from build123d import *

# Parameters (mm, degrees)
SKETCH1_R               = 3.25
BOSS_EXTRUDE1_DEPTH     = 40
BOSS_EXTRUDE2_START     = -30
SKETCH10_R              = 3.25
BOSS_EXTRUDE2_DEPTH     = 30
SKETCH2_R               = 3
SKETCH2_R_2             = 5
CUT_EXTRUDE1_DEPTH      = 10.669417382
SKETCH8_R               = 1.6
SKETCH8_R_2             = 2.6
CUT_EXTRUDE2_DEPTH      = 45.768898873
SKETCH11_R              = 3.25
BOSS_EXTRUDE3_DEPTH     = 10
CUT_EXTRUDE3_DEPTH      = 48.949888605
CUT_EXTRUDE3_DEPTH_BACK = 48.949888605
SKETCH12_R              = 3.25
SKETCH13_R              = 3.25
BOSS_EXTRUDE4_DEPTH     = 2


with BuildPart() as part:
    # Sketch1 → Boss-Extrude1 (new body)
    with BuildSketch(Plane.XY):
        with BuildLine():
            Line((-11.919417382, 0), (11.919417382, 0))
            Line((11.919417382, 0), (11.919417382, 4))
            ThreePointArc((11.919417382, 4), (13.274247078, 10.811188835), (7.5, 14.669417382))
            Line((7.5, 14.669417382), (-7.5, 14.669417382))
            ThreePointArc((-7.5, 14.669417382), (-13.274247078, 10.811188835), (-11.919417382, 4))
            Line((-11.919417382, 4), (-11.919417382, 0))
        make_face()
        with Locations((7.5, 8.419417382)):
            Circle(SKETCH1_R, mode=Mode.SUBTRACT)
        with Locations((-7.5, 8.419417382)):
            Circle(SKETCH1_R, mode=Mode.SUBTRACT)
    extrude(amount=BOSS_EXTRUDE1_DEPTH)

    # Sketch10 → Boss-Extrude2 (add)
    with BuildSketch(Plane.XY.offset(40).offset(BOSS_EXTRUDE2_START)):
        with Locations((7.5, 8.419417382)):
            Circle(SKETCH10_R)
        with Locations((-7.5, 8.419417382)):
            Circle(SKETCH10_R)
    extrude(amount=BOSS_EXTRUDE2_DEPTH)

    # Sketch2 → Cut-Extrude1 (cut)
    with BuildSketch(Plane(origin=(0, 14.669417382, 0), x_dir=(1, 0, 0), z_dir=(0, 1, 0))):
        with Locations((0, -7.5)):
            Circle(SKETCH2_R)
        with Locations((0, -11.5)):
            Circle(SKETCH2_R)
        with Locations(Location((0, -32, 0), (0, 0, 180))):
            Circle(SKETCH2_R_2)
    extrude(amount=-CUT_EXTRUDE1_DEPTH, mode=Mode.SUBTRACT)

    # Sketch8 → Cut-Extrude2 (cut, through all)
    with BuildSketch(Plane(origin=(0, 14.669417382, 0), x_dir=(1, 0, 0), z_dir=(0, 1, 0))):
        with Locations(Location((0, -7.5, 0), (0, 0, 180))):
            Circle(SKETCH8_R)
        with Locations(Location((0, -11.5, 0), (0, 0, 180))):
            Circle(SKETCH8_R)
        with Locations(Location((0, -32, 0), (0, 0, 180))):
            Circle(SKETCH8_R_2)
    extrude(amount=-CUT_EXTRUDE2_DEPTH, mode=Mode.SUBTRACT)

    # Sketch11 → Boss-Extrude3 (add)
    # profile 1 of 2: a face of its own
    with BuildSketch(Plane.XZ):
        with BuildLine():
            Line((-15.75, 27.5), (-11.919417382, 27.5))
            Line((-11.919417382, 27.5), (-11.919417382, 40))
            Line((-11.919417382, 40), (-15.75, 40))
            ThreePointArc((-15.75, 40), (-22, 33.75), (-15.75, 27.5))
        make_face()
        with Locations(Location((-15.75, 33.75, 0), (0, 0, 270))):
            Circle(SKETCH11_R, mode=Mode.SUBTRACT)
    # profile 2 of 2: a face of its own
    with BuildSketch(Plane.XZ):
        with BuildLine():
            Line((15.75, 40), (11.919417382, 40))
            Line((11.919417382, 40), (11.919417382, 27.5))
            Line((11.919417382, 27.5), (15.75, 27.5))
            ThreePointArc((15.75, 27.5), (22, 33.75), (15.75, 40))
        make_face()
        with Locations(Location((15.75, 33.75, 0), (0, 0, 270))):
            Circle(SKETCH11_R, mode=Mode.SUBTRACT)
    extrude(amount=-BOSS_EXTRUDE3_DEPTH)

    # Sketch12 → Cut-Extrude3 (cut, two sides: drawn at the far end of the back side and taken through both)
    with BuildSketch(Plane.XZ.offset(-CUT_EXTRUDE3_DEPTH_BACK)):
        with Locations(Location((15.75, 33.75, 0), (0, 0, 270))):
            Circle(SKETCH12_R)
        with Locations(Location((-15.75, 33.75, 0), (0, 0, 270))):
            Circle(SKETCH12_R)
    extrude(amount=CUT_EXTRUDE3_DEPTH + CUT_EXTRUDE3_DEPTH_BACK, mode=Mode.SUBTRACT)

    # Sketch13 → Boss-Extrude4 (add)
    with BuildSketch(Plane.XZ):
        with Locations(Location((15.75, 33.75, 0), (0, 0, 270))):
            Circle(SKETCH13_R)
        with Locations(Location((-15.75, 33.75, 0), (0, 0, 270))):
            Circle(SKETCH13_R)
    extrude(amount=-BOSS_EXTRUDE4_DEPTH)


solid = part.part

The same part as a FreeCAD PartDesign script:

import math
import FreeCAD as App
import Part
import Sketcher

doc = App.newDocument("Part")
params = doc.addObject("Spreadsheet::Sheet", "Params")
for row, (alias, value) in enumerate([
    ("sketch1_diameter", "6.5 mm"),
    ("sketch1_width", "15 mm"),
    ("sketch1_height", "4 mm"),
    ("sketch1_radius", "6.25 mm"),
    ("pad1_length", "40 mm"),
    ("sketch2_diameter", "6.5 mm"),
    ("pad2_length", "30 mm"),
    ("sketch3_diameter", "10 mm"),
    ("sketch3_radius", "3 mm"),
    ("pocket1_length", "10.669417 mm"),
    ("sketch4_diameter", "3.2 mm"),
    ("sketch4_diameter2", "5.2 mm"),
    ("sketch5_diameter", "6.5 mm"),
    ("sketch5_radius", "6.25 mm"),
    ("pad3_length", "10 mm"),
    ("sketch6_diameter", "6.5 mm"),
    ("sketch7_diameter", "6.5 mm"),
    ("pad4_length", "2 mm"),
], start=1):
    params.set(f"A{row}", alias)
    params.set(f"B{row}", "=" + value)
    params.setAlias(f"B{row}", alias)

body = doc.addObject("PartDesign::Body", "Body")

sketch1 = body.newObject("Sketcher::SketchObject", "Sketch")
sketch1.AttachmentSupport = (doc.getObject("XY_Plane"), [""])
sketch1.MapMode = "FlatFace"
sketch1.addGeometry([
    Part.LineSegment(App.Vector(-11.919417, 0, 0), App.Vector(11.919417, 0, 0)),
    Part.LineSegment(App.Vector(11.919417, 0, 0), App.Vector(11.919417, 4, 0)),
    Part.ArcOfCircle(Part.Circle(App.Vector(7.5, 8.419417, 0), App.Vector(0, 0, 1), 6.25), math.radians(-45), math.radians(90)),
    Part.LineSegment(App.Vector(7.5, 14.669417, 0), App.Vector(-7.5, 14.669417, 0)),
    Part.ArcOfCircle(Part.Circle(App.Vector(-7.5, 8.419417, 0), App.Vector(0, 0, 1), 6.25), math.radians(90), math.radians(225)),
    Part.LineSegment(App.Vector(-11.919417, 4, 0), App.Vector(-11.919417, 0, 0)),
    Part.Circle(App.Vector(-7.5, 8.419417, 0), App.Vector(0, 0, 1), 3.25),
    Part.Circle(App.Vector(7.5, 8.419417, 0), App.Vector(0, 0, 1), 3.25),
], False)
sketch1.addConstraint([
    Sketcher.Constraint("Coincident", 0, 2, 1, 1),
    Sketcher.Constraint("Coincident", 1, 2, 2, 1),
    Sketcher.Constraint("Tangent", 2, 2, 3, 1),
    Sketcher.Constraint("Tangent", 3, 2, 4, 1),
    Sketcher.Constraint("Coincident", 4, 2, 5, 1),
    Sketcher.Constraint("Coincident", 5, 2, 0, 1),
    Sketcher.Constraint("Horizontal", 0),
    Sketcher.Constraint("Vertical", 1),
    Sketcher.Constraint("Horizontal", 3),
    Sketcher.Constraint("Vertical", 5),
    Sketcher.Constraint("Coincident", 6, 3, 4, 3),
    Sketcher.Constraint("Coincident", 7, 3, 2, 3),
    Sketcher.Constraint("Equal", 2, 4),
    Sketcher.Constraint("Equal", 6, 7),
    Sketcher.Constraint("Symmetric", 0, 2, 5, 2, -1, 1),
    Sketcher.Constraint("Horizontal", 1, 2, 4, 2),
    Sketcher.Constraint("Diameter", 6, 6.5),
    Sketcher.Constraint("DistanceX", 3, 2, 3, 1, 15.0),
    Sketcher.Constraint("DistanceY", 1, 1, 1, 2, 4.0),
    Sketcher.Constraint("Radius", 2, 6.25),
    Sketcher.Constraint("DistanceX", 0, 1, 0, 2, 23.838835),
])
sketch1.setExpression("Constraints[16]", "Params.sketch1_diameter")
sketch1.setExpression("Constraints[17]", "Params.sketch1_width")
sketch1.setExpression("Constraints[18]", "Params.sketch1_height")
sketch1.setExpression("Constraints[19]", "Params.sketch1_radius")
pad1 = body.newObject("PartDesign::Pad", "Pad")
pad1.Profile = sketch1
pad1.setExpression("Length", "Params.pad1_length")

sketch2 = body.newObject("Sketcher::SketchObject", "Sketch001")
sketch2.AttachmentSupport = (doc.getObject("XY_Plane"), [""])
sketch2.MapMode = "FlatFace"
sketch2.AttachmentOffset = App.Placement(App.Vector(0, 0, 10), App.Rotation())
sketch2.addGeometry([
    Part.Circle(App.Vector(7.5, 8.419417, 0), App.Vector(0, 0, 1), 3.25),
    Part.Circle(App.Vector(-7.5, 8.419417, 0), App.Vector(0, 0, 1), 3.25),
], False)
sketch2.addConstraint([
    Sketcher.Constraint("Equal", 0, 1),
    Sketcher.Constraint("Symmetric", 0, 3, 1, 3, -2),
    Sketcher.Constraint("Diameter", 0, 6.5),
    Sketcher.Constraint("DistanceX", 1, 3, 0, 3, 15.0),
    Sketcher.Constraint("DistanceY", -1, 1, 0, 3, 8.419417),
])
sketch2.setExpression("Constraints[2]", "Params.sketch2_diameter")
pad2 = body.newObject("PartDesign::Pad", "Pad001")
pad2.Profile = sketch2
pad2.setExpression("Length", "Params.pad2_length")

sketch3 = body.newObject("Sketcher::SketchObject", "Sketch002")
sketch3.AttachmentSupport = (doc.getObject("XZ_Plane"), [""])
sketch3.MapMode = "FlatFace"
sketch3.AttachmentOffset = App.Placement(App.Vector(0, 0, -14.669417), App.Rotation())
sketch3.addGeometry([
    Part.ArcOfCircle(Part.Circle(App.Vector(0, 7.5, 0), App.Vector(0, 0, 1), 3), math.radians(138.189685), math.radians(401.810315)),
    Part.ArcOfCircle(Part.Circle(App.Vector(0, 11.5, 0), App.Vector(0, 0, 1), 3), math.radians(-41.810315), math.radians(221.810315)),
    Part.Circle(App.Vector(0, 32, 0), App.Vector(0, 0, 1), 5),
], False)
sketch3.addConstraint([
    Sketcher.Constraint("Coincident", 0, 1, 1, 2),
    Sketcher.Constraint("Coincident", 1, 1, 0, 2),
    Sketcher.Constraint("Equal", 0, 1),
    Sketcher.Constraint("Symmetric", 0, 1, 1, 1, -2),
    Sketcher.Constraint("PointOnObject", 2, 3, -2),
    Sketcher.Constraint("Diameter", 2, 10.0),
    Sketcher.Constraint("Radius", 0, 3.0),
    Sketcher.Constraint("DistanceY", -1, 1, 2, 3, 32.0),
    Sketcher.Constraint("DistanceY", 0, 3, 1, 3, 4.0),
    Sketcher.Constraint("DistanceY", -1, 1, 0, 3, 7.5),
])
sketch3.setExpression("Constraints[5]", "Params.sketch3_diameter")
sketch3.setExpression("Constraints[6]", "Params.sketch3_radius")
pocket1 = body.newObject("PartDesign::Pocket", "Pocket")
pocket1.Profile = sketch3
pocket1.setExpression("Length", "Params.pocket1_length")
pocket1.Reversed = True

sketch4 = body.newObject("Sketcher::SketchObject", "Sketch003")
sketch4.AttachmentSupport = (doc.getObject("XZ_Plane"), [""])
sketch4.MapMode = "FlatFace"
sketch4.AttachmentOffset = App.Placement(App.Vector(0, 0, -14.669417), App.Rotation())
sketch4.addGeometry([
    Part.Circle(App.Vector(0, 7.5, 0), App.Vector(0, 0, 1), 1.6),
    Part.Circle(App.Vector(0, 11.5, 0), App.Vector(0, 0, 1), 1.6),
    Part.Circle(App.Vector(0, 32, 0), App.Vector(0, 0, 1), 2.6),
], False)
sketch4.addConstraint([
    Sketcher.Constraint("Equal", 0, 1),
    Sketcher.Constraint("PointOnObject", 0, 3, -2),
    Sketcher.Constraint("PointOnObject", 1, 3, -2),
    Sketcher.Constraint("PointOnObject", 2, 3, -2),
    Sketcher.Constraint("Diameter", 0, 3.2),
    Sketcher.Constraint("Diameter", 2, 5.2),
    Sketcher.Constraint("DistanceY", -1, 1, 2, 3, 32.0),
    Sketcher.Constraint("DistanceY", 0, 3, 1, 3, 4.0),
    Sketcher.Constraint("DistanceY", -1, 1, 0, 3, 7.5),
])
sketch4.setExpression("Constraints[4]", "Params.sketch4_diameter")
sketch4.setExpression("Constraints[5]", "Params.sketch4_diameter2")
pocket2 = body.newObject("PartDesign::Pocket", "Pocket001")
pocket2.Profile = sketch4
pocket2.Type = "ThroughAll"
pocket2.Reversed = True

sketch5 = body.newObject("Sketcher::SketchObject", "Sketch004")
sketch5.AttachmentSupport = (doc.getObject("XZ_Plane"), [""])
sketch5.MapMode = "FlatFace"
sketch5.addGeometry([
    Part.LineSegment(App.Vector(-15.75, 27.5, 0), App.Vector(-11.919417, 27.5, 0)),
    Part.LineSegment(App.Vector(-11.919417, 27.5, 0), App.Vector(-11.919417, 40, 0)),
    Part.LineSegment(App.Vector(-11.919417, 40, 0), App.Vector(-15.75, 40, 0)),
    Part.ArcOfCircle(Part.Circle(App.Vector(-15.75, 33.75, 0), App.Vector(0, 0, 1), 6.25), math.radians(90), math.radians(270)),
    Part.Circle(App.Vector(-15.75, 33.75, 0), App.Vector(0, 0, 1), 3.25),
    Part.LineSegment(App.Vector(15.75, 40, 0), App.Vector(11.919417, 40, 0)),
    Part.LineSegment(App.Vector(11.919417, 40, 0), App.Vector(11.919417, 27.5, 0)),
    Part.LineSegment(App.Vector(11.919417, 27.5, 0), App.Vector(15.75, 27.5, 0)),
    Part.ArcOfCircle(Part.Circle(App.Vector(15.75, 33.75, 0), App.Vector(0, 0, 1), 6.25), math.radians(-90), math.radians(90)),
    Part.Circle(App.Vector(15.75, 33.75, 0), App.Vector(0, 0, 1), 3.25),
], False)
sketch5.addConstraint([
    Sketcher.Constraint("Coincident", 0, 2, 1, 1),
    Sketcher.Constraint("Coincident", 1, 2, 2, 1),
    Sketcher.Constraint("Tangent", 2, 2, 3, 1),
    Sketcher.Constraint("Tangent", 3, 2, 0, 1),
    Sketcher.Constraint("Coincident", 5, 2, 6, 1),
    Sketcher.Constraint("Coincident", 6, 2, 7, 1),
    Sketcher.Constraint("Tangent", 7, 2, 8, 1),
    Sketcher.Constraint("Tangent", 8, 2, 5, 1),
    Sketcher.Constraint("Horizontal", 0),
    Sketcher.Constraint("Vertical", 1),
    Sketcher.Constraint("Horizontal", 2),
    Sketcher.Constraint("Horizontal", 5),
    Sketcher.Constraint("Vertical", 6),
    Sketcher.Constraint("Horizontal", 7),
    Sketcher.Constraint("Coincident", 4, 3, 3, 3),
    Sketcher.Constraint("Coincident", 9, 3, 8, 3),
    Sketcher.Constraint("Equal", 3, 8),
    Sketcher.Constraint("Equal", 4, 9),
    Sketcher.Constraint("Symmetric", 3, 3, 8, 3, -2),
    Sketcher.Constraint("Equal", 2, 5),
    Sketcher.Constraint("Diameter", 4, 6.5),
    Sketcher.Constraint("Radius", 3, 6.25),
    Sketcher.Constraint("DistanceY", -1, 1, 1, 2, 40.0),
    Sketcher.Constraint("DistanceX", 3, 3, 8, 3, 31.5),
    Sketcher.Constraint("DistanceX", 0, 1, 0, 2, 3.830583),
])
sketch5.setExpression("Constraints[20]", "Params.sketch5_diameter")
sketch5.setExpression("Constraints[21]", "Params.sketch5_radius")
pad3 = body.newObject("PartDesign::Pad", "Pad002")
pad3.Profile = sketch5
pad3.setExpression("Length", "Params.pad3_length")
pad3.Reversed = True

sketch6 = body.newObject("Sketcher::SketchObject", "Sketch005")
sketch6.AttachmentSupport = (doc.getObject("XZ_Plane"), [""])
sketch6.MapMode = "FlatFace"
sketch6.addGeometry([
    Part.Circle(App.Vector(15.75, 33.75, 0), App.Vector(0, 0, 1), 3.25),
    Part.Circle(App.Vector(-15.75, 33.75, 0), App.Vector(0, 0, 1), 3.25),
], False)
sketch6.addConstraint([
    Sketcher.Constraint("Equal", 0, 1),
    Sketcher.Constraint("Symmetric", 0, 3, 1, 3, -2),
    Sketcher.Constraint("Diameter", 0, 6.5),
    Sketcher.Constraint("DistanceX", 1, 3, 0, 3, 31.5),
    Sketcher.Constraint("DistanceY", -1, 1, 0, 3, 33.75),
])
sketch6.setExpression("Constraints[2]", "Params.sketch6_diameter")
pocket3 = body.newObject("PartDesign::Pocket", "Pocket002")
pocket3.Profile = sketch6
pocket3.Type = "ThroughAll"
pocket3.Midplane = True

sketch7 = body.newObject("Sketcher::SketchObject", "Sketch006")
sketch7.AttachmentSupport = (doc.getObject("XZ_Plane"), [""])
sketch7.MapMode = "FlatFace"
sketch7.addGeometry([
    Part.Circle(App.Vector(15.75, 33.75, 0), App.Vector(0, 0, 1), 3.25),
    Part.Circle(App.Vector(-15.75, 33.75, 0), App.Vector(0, 0, 1), 3.25),
], False)
sketch7.addConstraint([
    Sketcher.Constraint("Equal", 0, 1),
    Sketcher.Constraint("Symmetric", 0, 3, 1, 3, -2),
    Sketcher.Constraint("Diameter", 0, 6.5),
    Sketcher.Constraint("DistanceX", 1, 3, 0, 3, 31.5),
    Sketcher.Constraint("DistanceY", -1, 1, 0, 3, 33.75),
])
sketch7.setExpression("Constraints[2]", "Params.sketch7_diameter")
pad4 = body.newObject("PartDesign::Pad", "Pad003")
pad4.Profile = sketch7
pad4.setExpression("Length", "Params.pad4_length")
pad4.Reversed = True

doc.recompute()
